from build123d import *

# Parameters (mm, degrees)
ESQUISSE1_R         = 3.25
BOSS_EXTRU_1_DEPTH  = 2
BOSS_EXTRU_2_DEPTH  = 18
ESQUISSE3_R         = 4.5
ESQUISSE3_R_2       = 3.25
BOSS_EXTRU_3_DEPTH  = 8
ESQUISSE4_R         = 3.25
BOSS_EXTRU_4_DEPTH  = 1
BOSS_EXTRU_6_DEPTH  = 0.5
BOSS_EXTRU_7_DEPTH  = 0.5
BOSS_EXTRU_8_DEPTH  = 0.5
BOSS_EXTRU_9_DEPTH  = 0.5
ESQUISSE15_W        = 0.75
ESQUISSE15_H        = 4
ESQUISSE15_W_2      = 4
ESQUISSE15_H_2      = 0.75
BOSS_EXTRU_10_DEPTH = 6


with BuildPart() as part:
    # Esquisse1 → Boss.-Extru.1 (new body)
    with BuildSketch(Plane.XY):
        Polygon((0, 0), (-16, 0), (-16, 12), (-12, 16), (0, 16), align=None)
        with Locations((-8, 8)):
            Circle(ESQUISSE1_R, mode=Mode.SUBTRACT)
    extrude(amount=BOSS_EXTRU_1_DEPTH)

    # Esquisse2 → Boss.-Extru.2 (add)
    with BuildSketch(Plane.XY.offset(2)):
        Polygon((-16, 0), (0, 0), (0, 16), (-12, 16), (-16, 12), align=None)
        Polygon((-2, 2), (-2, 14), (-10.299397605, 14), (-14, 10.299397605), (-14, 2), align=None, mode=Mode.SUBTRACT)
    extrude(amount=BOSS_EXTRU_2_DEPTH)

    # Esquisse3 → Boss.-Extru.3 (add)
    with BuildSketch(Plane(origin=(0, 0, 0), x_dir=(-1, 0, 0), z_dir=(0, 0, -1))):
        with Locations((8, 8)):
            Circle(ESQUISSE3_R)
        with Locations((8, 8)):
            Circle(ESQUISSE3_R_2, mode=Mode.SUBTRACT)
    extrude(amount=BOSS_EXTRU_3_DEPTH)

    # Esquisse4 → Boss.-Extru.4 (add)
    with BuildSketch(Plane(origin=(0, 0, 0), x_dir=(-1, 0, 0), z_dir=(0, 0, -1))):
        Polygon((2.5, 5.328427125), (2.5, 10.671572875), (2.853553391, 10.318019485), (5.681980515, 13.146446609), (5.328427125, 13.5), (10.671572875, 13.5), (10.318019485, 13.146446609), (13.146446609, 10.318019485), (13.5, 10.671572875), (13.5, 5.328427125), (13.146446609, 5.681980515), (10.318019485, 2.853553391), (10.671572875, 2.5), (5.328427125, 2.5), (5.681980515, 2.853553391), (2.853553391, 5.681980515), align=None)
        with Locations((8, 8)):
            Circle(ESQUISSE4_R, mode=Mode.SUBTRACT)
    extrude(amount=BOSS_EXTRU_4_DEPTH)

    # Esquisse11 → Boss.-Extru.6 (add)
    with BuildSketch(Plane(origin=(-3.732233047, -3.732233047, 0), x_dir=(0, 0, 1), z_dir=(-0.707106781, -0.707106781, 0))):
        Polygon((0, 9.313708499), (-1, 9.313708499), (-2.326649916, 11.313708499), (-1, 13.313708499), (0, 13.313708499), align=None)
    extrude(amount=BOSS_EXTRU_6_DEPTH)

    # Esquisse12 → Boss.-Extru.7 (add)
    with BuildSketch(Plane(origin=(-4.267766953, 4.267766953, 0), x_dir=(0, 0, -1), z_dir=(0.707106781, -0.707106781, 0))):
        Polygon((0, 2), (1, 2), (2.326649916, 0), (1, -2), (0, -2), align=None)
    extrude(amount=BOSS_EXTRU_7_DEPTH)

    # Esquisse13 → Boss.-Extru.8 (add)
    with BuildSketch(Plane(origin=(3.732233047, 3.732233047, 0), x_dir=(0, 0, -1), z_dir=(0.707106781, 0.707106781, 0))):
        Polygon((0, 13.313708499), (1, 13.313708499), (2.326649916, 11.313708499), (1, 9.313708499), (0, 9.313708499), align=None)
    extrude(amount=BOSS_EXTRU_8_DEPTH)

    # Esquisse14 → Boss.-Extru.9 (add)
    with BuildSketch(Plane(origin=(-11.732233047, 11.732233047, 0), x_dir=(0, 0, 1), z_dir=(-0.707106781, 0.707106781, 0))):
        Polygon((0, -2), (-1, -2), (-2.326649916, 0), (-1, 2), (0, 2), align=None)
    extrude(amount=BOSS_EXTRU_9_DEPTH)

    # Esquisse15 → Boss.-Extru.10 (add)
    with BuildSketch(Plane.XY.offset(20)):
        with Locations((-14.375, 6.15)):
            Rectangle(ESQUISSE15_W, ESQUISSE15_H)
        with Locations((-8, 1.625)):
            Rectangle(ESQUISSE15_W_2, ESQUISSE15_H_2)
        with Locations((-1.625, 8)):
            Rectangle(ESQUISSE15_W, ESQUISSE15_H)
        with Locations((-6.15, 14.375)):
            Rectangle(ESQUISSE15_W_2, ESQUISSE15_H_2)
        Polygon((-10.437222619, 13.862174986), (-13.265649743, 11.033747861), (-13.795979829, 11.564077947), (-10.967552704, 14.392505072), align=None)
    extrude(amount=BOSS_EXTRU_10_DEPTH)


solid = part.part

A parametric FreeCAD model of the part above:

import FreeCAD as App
import Part
import Sketcher

V = App.Vector
Q = App.Units.Quantity


def add_polygon(sketch, points):
    """Adds a closed chain of lines whose ends are joined by coincident constraints."""
    first, n = sketch.GeometryCount, len(points)
    for a, b in zip(points, points[1:] + points[:1]):
        sketch.addGeometry(Part.LineSegment(App.Vector(*a, 0), App.Vector(*b, 0)), False)
    for i in range(n):
        sketch.addConstraint(Sketcher.Constraint("Coincident", first + i, 2, first + (i + 1) % n, 1))

doc = App.newDocument("Part")
body = doc.addObject("PartDesign::Body", "Body")

sketch1 = body.newObject("Sketcher::SketchObject", "Sketch")
sketch1.AttachmentSupport = (doc.getObject("XY_Plane"), [""])
sketch1.MapMode = "FlatFace"
add_polygon(sketch1, [(-16, 0), (0, 0), (0, 16), (-12, 16), (-16, 12)])
sketch1.addGeometry(Part.Circle(V(-8, 8, 0), V(0, 0, 1), 3.25), False)
sketch1.addConstraint([
    Sketcher.Constraint("Horizontal", 0),
    Sketcher.Constraint("Vertical", 1),
    Sketcher.Constraint("Horizontal", 2),
    Sketcher.Constraint("Vertical", 4),
    Sketcher.Constraint("Coincident", 0, 2, -1, 1),
    Sketcher.Constraint("Equal", 0, 1),
    Sketcher.Constraint("Equal", 2, 4),
    Sketcher.Constraint("Diameter", 5, Q("6.5 mm")),
    Sketcher.Constraint("DistanceX", 0, 1, 0, 2, Q("16 mm")),
    Sketcher.Constraint("DistanceX", 2, 2, 2, 1, Q("12 mm")),
    Sketcher.Constraint("DistanceX", 5, 3, -1, 1, Q("8 mm")),
    Sketcher.Constraint("DistanceY", -1, 1, 5, 3, Q("8 mm")),
])
pad1 = body.newObject("PartDesign::Pad", "Pad")
pad1.Profile = sketch1
pad1.Length = 2

sketch2 = body.newObject("Sketcher::SketchObject", "Sketch001")
sketch2.AttachmentSupport = (doc.getObject("XY_Plane"), [""])
sketch2.MapMode = "FlatFace"
sketch2.AttachmentOffset = App.Placement(V(0, 0, 2), App.Rotation())
add_polygon(sketch2, [(-16, 0), (0, 0), (0, 16), (-12, 16), (-16, 12)])
add_polygon(sketch2, [(-2, 14), (-2, 2), (-14, 2), (-14, 10.299398), (-10.299398, 14)])
sketch2.addConstraint([
    Sketcher.Constraint("Horizontal", 0),
    Sketcher.Constraint("Vertical", 1),
    Sketcher.Constraint("Horizontal", 2),
    Sketcher.Constraint("Vertical", 4),
    Sketcher.Constraint("Vertical", 5),
    Sketcher.Constraint("Horizontal", 6),
    Sketcher.Constraint("Vertical", 7),
    Sketcher.Constraint("Horizontal", 9),
    Sketcher.Constraint("Coincident", 0, 2, -1, 1),
    Sketcher.Constraint("Parallel", 3, 8),
    Sketcher.Constraint("Equal", 2, 6),
    Sketcher.Constraint("Equal", 0, 1),
    Sketcher.Constraint("Equal", 6, 4),
    Sketcher.Constraint("Equal", 4, 5),
    Sketcher.Constraint("DistanceX", 0, 1, 0, 2, Q("16 mm")),
    Sketcher.Constraint("DistanceX", 2, 2, 2, 1, Q("12 mm")),
    Sketcher.Constraint("DistanceX", 5, 2, -1, 1, Q("2 mm")),
    Sketcher.Constraint("DistanceY", -1, 1, 5, 2, Q("2 mm")),
    Sketcher.Constraint("DistanceX", 9, 1, 9, 2, Q("8.299398 mm")),
])
pad2 = body.newObject("PartDesign::Pad", "Pad001")
pad2.Profile = sketch2
pad2.Length = 18

sketch3 = body.newObject("Sketcher::SketchObject", "Sketch002")
sketch3.AttachmentSupport = (doc.getObject("XY_Plane"), [""])
sketch3.MapMode = "FlatFace"
sketch3.addGeometry([
    Part.Circle(V(-8, 8, 0), V(0, 0, 1), 4.5),
    Part.Circle(V(-8, 8, 0), V(0, 0, 1), 3.25),
], False)
sketch3.addConstraint([
    Sketcher.Constraint("Coincident", 1, 3, 0, 3),
    Sketcher.Constraint("Diameter", 0, Q("9 mm")),
    Sketcher.Constraint("Diameter", 1, Q("6.5 mm")),
    Sketcher.Constraint("DistanceX", 0, 3, -1, 1, Q("8 mm")),
    Sketcher.Constraint("DistanceY", -1, 1, 0, 3, Q("8 mm")),
])
pad3 = body.newObject("PartDesign::Pad", "Pad002")
pad3.Profile = sketch3
pad3.Length = 8
pad3.Reversed = True

sketch4 = body.newObject("Sketcher::SketchObject", "Sketch003")
sketch4.AttachmentSupport = (doc.getObject("XY_Plane"), [""])
sketch4.MapMode = "FlatFace"
add_polygon(sketch4, [(-2.5, 10.671573), (-2.5, 5.328427), (-2.853553, 5.681981), (-5.681981, 2.853553), (-5.328427, 2.5), (-10.671573, 2.5), (-10.318019, 2.853553), (-13.146447, 5.681981), (-13.5, 5.328427), (-13.5, 10.671573), (-13.146447, 10.318019), (-10.318019, 13.146447), (-10.671573, 13.5), (-5.328427, 13.5), (-5.681981, 13.146447), (-2.853553, 10.318019)])
sketch4.addGeometry(Part.Circle(V(-8, 8, 0), V(0, 0, 1), 3.25), False)
sketch4.addConstraint([
    Sketcher.Constraint("Vertical", 0),
    Sketcher.Constraint("Horizontal", 4),
    Sketcher.Constraint("Vertical", 8),
    Sketcher.Constraint("Horizontal", 12),
    Sketcher.Constraint("Perpendicular", 1, 2),
    Sketcher.Constraint("Perpendicular", 2, 3),
    Sketcher.Constraint("Perpendicular", 3, 5),
    Sketcher.Constraint("Perpendicular", 5, 6),
    Sketcher.Constraint("Perpendicular", 6, 7),
    Sketcher.Constraint("Perpendicular", 7, 9),
    Sketcher.Constraint("Perpendicular", 9, 10),
    Sketcher.Constraint("Perpendicular", 10, 11),
    Sketcher.Constraint("Perpendicular", 11, 13),
    Sketcher.Constraint("Perpendicular", 13, 14),
    Sketcher.Constraint("Perpendicular", 14, 15),
    Sketcher.Constraint("Horizontal", 2, 2, 5, 2),
    Sketcher.Constraint("Horizontal", 1, 2, 6, 2),
    Sketcher.Constraint("Horizontal", 0, 2, 7, 2),
    Sketcher.Constraint("Horizontal", 10, 2, 13, 2),
    Sketcher.Constraint("Horizontal", 9, 2, 14, 2),
    Sketcher.Constraint("Horizontal", 8, 2, 15, 2),
    Sketcher.Constraint("Vertical", 6, 2, 9, 2),
    Sketcher.Constraint("Vertical", 5, 2, 10, 2),
    Sketcher.Constraint("Vertical", 4, 2, 11, 2),
    Sketcher.Constraint("Vertical", 3, 2, 12, 2),
    Sketcher.Constraint("Equal", 12, 0),
    Sketcher.Constraint("Equal", 1, 3),
    Sketcher.Constraint("Diameter", 16, Q("6.5 mm")),
    Sketcher.Constraint("Distance", 2, Q("4 mm")),
    Sketcher.Constraint("DistanceX", 16, 3, -1, 1, Q("8 mm")),
    Sketcher.Constraint("DistanceY", -1, 1, 16, 3, Q("8 mm")),
    Sketcher.Constraint("Distance", 1, Q("0.5 mm")),
    Sketcher.Constraint("DistanceX", 0, 2, -1, 1, Q("2.5 mm")),
    Sketcher.Constraint("DistanceY", -1, 1, 3, 2, Q("2.5 mm")),
    Sketcher.Constraint("DistanceX", 7, 2, -1, 1, Q("13.5 mm")),
])
pad4 = body.newObject("PartDesign::Pad", "Pad003")
pad4.Profile = sketch4
pad4.Length = 1
pad4.Reversed = True

sketch5 = body.newObject("Sketcher::SketchObject", "Sketch004")
sketch5.Placement = App.Placement(V(-3.732233, -3.732233, 0), App.Rotation(V(0, 0, 1), V(-0.707106781, 0.707106781, 0), V(-0.707106781, -0.707106781, 0), "ZXY"))
add_polygon(sketch5, [(-1, 9.313708), (0, 9.313708), (0, 13.313708), (-1, 13.313708), (-2.32665, 11.313708)])
sketch5.addConstraint([
    Sketcher.Constraint("Horizontal", 0),
    Sketcher.Constraint("Vertical", 1),
    Sketcher.Constraint("Horizontal", 2),
    Sketcher.Constraint("PointOnObject", 0, 2, -2),
    Sketcher.Constraint("Vertical", 2, 2, 4, 2),
    Sketcher.Constraint("Equal", 3, 4),
    Sketcher.Constraint("DistanceX", 0, 1, 0, 2, Q("1 mm")),
    Sketcher.Constraint("DistanceY", 1, 1, 1, 2, Q("4 mm")),
    Sketcher.Constraint("Distance", 3, Q("2.4 mm")),
    Sketcher.Constraint("DistanceY", -1, 1, 0, 2, Q("9.313708 mm")),
])
pad5 = body.newObject("PartDesign::Pad", "Pad004")
pad5.Profile = sketch5
pad5.Length = 0.5

sketch6 = body.newObject("Sketcher::SketchObject", "Sketch005")
sketch6.Placement = App.Placement(V(-4.267767, 4.267767, 0), App.Rotation(V(0, 0, -1), V(0.707106781, 0.707106781, 0), V(0.707106781, -0.707106781, 0), "ZXY"))
add_polygon(sketch6, [(1, 2), (0, 2), (0, -2), (1, -2), (2.32665, 0)])
sketch6.addConstraint([
    Sketcher.Constraint("Horizontal", 0),
    Sketcher.Constraint("Vertical", 1),
    Sketcher.Constraint("Horizontal", 2),
    Sketcher.Constraint("Symmetric", 0, 2, 1, 2, -1, 1),
    Sketcher.Constraint("PointOnObject", 3, 2, -1),
    Sketcher.Constraint("Vertical", 2, 2, 4, 2),
    Sketcher.Constraint("DistanceX", 0, 2, 0, 1, Q("1 mm")),
    Sketcher.Constraint("DistanceY", 1, 2, 1, 1, Q("4 mm")),
    Sketcher.Constraint("Distance", 3, Q("2.4 mm")),
])
pad6 = body.newObject("PartDesign::Pad", "Pad005")
pad6.Profile = sketch6
pad6.Length = 0.5

sketch7 = body.newObject("Sketcher::SketchObject", "Sketch006")
sketch7.Placement = App.Placement(V(3.732233, 3.732233, 0), App.Rotation(V(0, 0, -1), V(-0.707106781, 0.707106781, 0), V(0.707106781, 0.707106781, 0), "ZXY"))
add_polygon(sketch7, [(1, 13.313708), (0, 13.313708), (0, 9.313708), (1, 9.313708), (2.32665, 11.313708)])
sketch7.addConstraint([
    Sketcher.Constraint("Horizontal", 0),
    Sketcher.Constraint("Vertical", 1),
    Sketcher.Constraint("Horizontal", 2),
    Sketcher.Constraint("PointOnObject", 0, 2, -2),
    Sketcher.Constraint("Vertical", 2, 2, 4, 2),
    Sketcher.Constraint("Equal", 3, 4),
    Sketcher.Constraint("DistanceX", 0, 2, 0, 1, Q("1 mm")),
    Sketcher.Constraint("DistanceY", 1, 2, 1, 1, Q("4 mm")),
    Sketcher.Constraint("Distance", 3, Q("2.4 mm")),
    Sketcher.Constraint("DistanceY", -1, 1, 0, 2, Q("13.313708 mm")),
])
pad7 = body.newObject("PartDesign::Pad", "Pad006")
pad7.Profile = sketch7
pad7.Length = 0.5

sketch8 = body.newObject("Sketcher::SketchObject", "Sketch007")
sketch8.Placement = App.Placement(V(-11.732233, 11.732233, 0), App.Rotation(V(0, 0, 1), V(0.707106781, 0.707106781, 0), V(-0.707106781, 0.707106781, 0), "ZXY"))
add_polygon(sketch8, [(-1, -2), (0, -2), (0, 2), (-1, 2), (-2.32665, 0)])
sketch8.addConstraint([
    Sketcher.Constraint("Horizontal", 0),
    Sketcher.Constraint("Vertical", 1),
    Sketcher.Constraint("Horizontal", 2),
    Sketcher.Constraint("Symmetric", 0, 2, 1, 2, -1, 1),
    Sketcher.Constraint("PointOnObject", 3, 2, -1),
    Sketcher.Constraint("Vertical", 2, 2, 4, 2),
    Sketcher.Constraint("DistanceX", 0, 1, 0, 2, Q("1 mm")),
    Sketcher.Constraint("DistanceY", 1, 1, 1, 2, Q("4 mm")),
    Sketcher.Constraint("Distance", 3, Q("2.4 mm")),
])
pad8 = body.newObject("PartDesign::Pad", "Pad007")
pad8.Profile = sketch8
pad8.Length = 0.5

sketch9 = body.newObject("Sketcher::SketchObject", "Sketch008")
sketch9.AttachmentSupport = (doc.getObject("XY_Plane"), [""])
sketch9.MapMode = "FlatFace"
sketch9.AttachmentOffset = App.Placement(V(0, 0, 20), App.Rotation())
add_polygon(sketch9, [(-14.75, 8.15), (-14.75, 4.15), (-14, 4.15), (-14, 8.15)])
add_polygon(sketch9, [(-10, 2), (-10, 1.25), (-6, 1.25), (-6, 2)])
add_polygon(sketch9, [(-2, 10), (-2, 6), (-1.25, 6), (-1.25, 10)])
add_polygon(sketch9, [(-8.15, 14.75), (-8.15, 14), (-4.15, 14), (-4.15, 14.75)])
add_polygon(sketch9, [(-13.26565, 11.033748), (-10.437223, 13.862175), (-10.967553, 14.392505), (-13.79598, 11.564078)])
sketch9.addConstraint([
    Sketcher.Constraint("Vertical", 0),
    Sketcher.Constraint("Horizontal", 1),
    Sketcher.Constraint("Vertical", 2),
    Sketcher.Constraint("Horizontal", 3),
    Sketcher.Constraint("Vertical", 4),
    Sketcher.Constraint("Horizontal", 5),
    Sketcher.Constraint("Vertical", 6),
    Sketcher.Constraint("Horizontal", 7),
    Sketcher.Constraint("Vertical", 8),
    Sketcher.Constraint("Horizontal", 9),
    Sketcher.Constraint("Vertical", 10),
    Sketcher.Constraint("Horizontal", 11),
    Sketcher.Constraint("Vertical", 12),
    Sketcher.Constraint("Horizontal", 13),
    Sketcher.Constraint("Vertical", 14),
    Sketcher.Constraint("Horizontal", 15),
    Sketcher.Constraint("Perpendicular", 16, 17),
    Sketcher.Constraint("Perpendicular", 17, 18),
    Sketcher.Constraint("Perpendicular", 18, 19),
    Sketcher.Constraint("Equal", 3, 9),
    Sketcher.Constraint("Equal", 7, 13),
    Sketcher.Constraint("Equal", 15, 0),
    Sketcher.Constraint("Equal", 11, 4),
    Sketcher.Constraint("Equal", 2, 8),
    Sketcher.Constraint("Equal", 6, 12),
    Sketcher.Constraint("DistanceX", 5, 1, 5, 2, Q("4 mm")),
    Sketcher.Constraint("Angle", 16, Q("45 deg")),
    Sketcher.Constraint("Distance", 16, Q("4 mm")),
    Sketcher.Constraint("DistanceX", 1, 2, -1, 1, Q("14 mm")),
    Sketcher.Constraint("DistanceX", 4, 2, -1, 1, Q("10 mm")),
    Sketcher.Constraint("DistanceY", -1, 1, 6, 2, Q("2 mm")),
    Sketcher.Constraint("DistanceX", 8, 2, -1, 1, Q("2 mm")),
    Sketcher.Constraint("DistanceY", -1, 1, 8, 2, Q("6 mm")),
    Sketcher.Constraint("DistanceY", -1, 1, 12, 2, Q("14 mm")),
    Sketcher.Constraint("DistanceX", 1, 1, 1, 2, Q("0.75 mm")),
    Sketcher.Constraint("DistanceY", 4, 2, 1, 2, Q("2.9 mm")),
    Sketcher.Constraint("DistanceX", 12, 2, 10, 2, Q("6.9 mm")),
    Sketcher.Constraint("Distance", 17, Q("0.75 mm")),
    Sketcher.Constraint("DistanceX", 18, 2, -1, 1, Q("13.79598 mm")),
    Sketcher.Constraint("DistanceY", -1, 1, 16, 2, Q("13.862175 mm")),
])
pad9 = body.newObject("PartDesign::Pad", "Pad008")
pad9.Profile = sketch9
pad9.Length = 6

doc.recompute()
